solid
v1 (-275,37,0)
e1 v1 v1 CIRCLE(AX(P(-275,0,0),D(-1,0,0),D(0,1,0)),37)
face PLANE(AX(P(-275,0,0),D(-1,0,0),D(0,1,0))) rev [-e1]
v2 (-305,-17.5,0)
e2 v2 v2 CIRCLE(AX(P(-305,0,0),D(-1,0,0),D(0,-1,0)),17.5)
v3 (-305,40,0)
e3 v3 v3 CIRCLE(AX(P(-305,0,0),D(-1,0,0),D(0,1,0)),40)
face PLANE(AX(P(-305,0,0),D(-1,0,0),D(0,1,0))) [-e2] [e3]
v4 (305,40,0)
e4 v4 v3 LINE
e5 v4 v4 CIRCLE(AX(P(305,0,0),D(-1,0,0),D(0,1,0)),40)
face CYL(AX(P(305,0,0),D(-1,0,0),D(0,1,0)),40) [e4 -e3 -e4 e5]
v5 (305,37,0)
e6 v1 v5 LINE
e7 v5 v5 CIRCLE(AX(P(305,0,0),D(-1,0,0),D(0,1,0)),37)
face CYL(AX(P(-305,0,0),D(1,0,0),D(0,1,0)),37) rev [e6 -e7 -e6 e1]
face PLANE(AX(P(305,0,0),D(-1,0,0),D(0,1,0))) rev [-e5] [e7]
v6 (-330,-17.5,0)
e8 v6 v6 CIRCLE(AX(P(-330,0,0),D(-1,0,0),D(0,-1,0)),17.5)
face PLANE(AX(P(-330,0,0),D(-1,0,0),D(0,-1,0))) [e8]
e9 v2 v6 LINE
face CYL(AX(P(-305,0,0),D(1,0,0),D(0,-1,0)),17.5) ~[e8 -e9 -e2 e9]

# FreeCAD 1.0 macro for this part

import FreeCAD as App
import Part
import Sketcher

V = App.Vector
Q = App.Units.Quantity

doc = App.newDocument("Part")
params = doc.addObject("Spreadsheet::Sheet", "Params")
for row, (alias, value) in enumerate([
    ("sketch1_width", "610 mm"),
    ("sketch1_width2", "30 mm"),
    ("sketch1_height", "40 mm"),
    ("sketch1_height2", "37 mm"),
    ("revolution_angle", "360 deg"),
    ("sketch2_diameter", "35 mm"),
    ("pad1_length", "25 mm"),
], start=1):
    params.set(f"A{row}", alias)
    params.set(f"B{row}", "=" + value)
    params.setAlias(f"B{row}", alias)

body = doc.addObject("PartDesign::Body", "Body")

sketch1 = body.newObject("Sketcher::SketchObject", "Sketch")
sketch1.AttachmentSupport = (doc.getObject("XY_Plane"), [""])
sketch1.MapMode = "FlatFace"
sketch1.addGeometry(Part.LineSegment(V(305, 40, 0), V(-305, 40, 0)), False)
sketch1.addGeometry(Part.LineSegment(V(-305, 40, 0), V(-305, 0, 0)), False)
sketch1.addGeometry(Part.LineSegment(V(-305, 0, 0), V(-275, 0, 0)), False)
sketch1.addGeometry(Part.LineSegment(V(-275, 0, 0), V(-275, 37, 0)), False)
sketch1.addGeometry(Part.LineSegment(V(-275, 37, 0), V(305, 37, 0)), False)
sketch1.addGeometry(Part.LineSegment(V(305, 37, 0), V(305, 40, 0)), False)
sketch1.addConstraint(Sketcher.Constraint("Coincident", 0, 2, 1, 1))
sketch1.addConstraint(Sketcher.Constraint("Coincident", 1, 2, 2, 1))
sketch1.addConstraint(Sketcher.Constraint("Coincident", 2, 2, 3, 1))
sketch1.addConstraint(Sketcher.Constraint("Coincident", 3, 2, 4, 1))
sketch1.addConstraint(Sketcher.Constraint("Coincident", 4, 2, 5, 1))
sketch1.addConstraint(Sketcher.Constraint("Coincident", 5, 2, 0, 1))
sketch1.addConstraint(Sketcher.Constraint("Horizontal", 0))
sketch1.addConstraint(Sketcher.Constraint("Vertical", 1))
sketch1.addConstraint(Sketcher.Constraint("Horizontal", 2))
sketch1.addConstraint(Sketcher.Constraint("Vertical", 3))
sketch1.addConstraint(Sketcher.Constraint("Horizontal", 4))
sketch1.addConstraint(Sketcher.Constraint("Vertical", 5))
sketch1.addConstraint(Sketcher.Constraint("PointOnObject", 1, 2, -1))
sketch1.addConstraint(Sketcher.Constraint("DistanceX", 0, 2, 0, 1, Q("610 mm")))
sketch1.addConstraint(Sketcher.Constraint("DistanceX", 2, 1, 2, 2, Q("30 mm")))
sketch1.addConstraint(Sketcher.Constraint("DistanceY", 1, 2, 1, 1, Q("40 mm")))
sketch1.addConstraint(Sketcher.Constraint("DistanceY", 3, 1, 3, 2, Q("37 mm")))
sketch1.addConstraint(Sketcher.Constraint("DistanceX", 0, 2, -1, 1, Q("305 mm")))
sketch1.setExpression("Constraints[13]", "Params.sketch1_width")
sketch1.setExpression("Constraints[14]", "Params.sketch1_width2")
sketch1.setExpression("Constraints[15]", "Params.sketch1_height")
sketch1.setExpression("Constraints[16]", "Params.sketch1_height2")
revolution = body.newObject("PartDesign::Revolution", "Revolution")
revolution.Profile = sketch1
revolution.ReferenceAxis = (sketch1, ["H_Axis"])
revolution.setExpression("Angle", "Params.revolution_angle")

sketch2 = body.newObject("Sketcher::SketchObject", "Sketch001")
sketch2.AttachmentSupport = (doc.getObject("YZ_Plane"), [""])
sketch2.MapMode = "FlatFace"
sketch2.AttachmentOffset = App.Placement(V(0, 0, -305), App.Rotation())
sketch2.addGeometry(Part.Circle(V(0, 0, 0), V(0, 0, 1), 18), False)
sketch2.addConstraint(Sketcher.Constraint("Coincident", 0, 3, -1, 1))
sketch2.addConstraint(Sketcher.Constraint("Diameter", 0, Q("35 mm")))
sketch2.setExpression("Constraints[1]", "Params.sketch2_diameter")
pad1 = body.newObject("PartDesign::Pad", "Pad")
pad1.Profile = sketch2
pad1.setExpression("Length", "Params.pad1_length")
pad1.Reversed = True

doc.recompute()
